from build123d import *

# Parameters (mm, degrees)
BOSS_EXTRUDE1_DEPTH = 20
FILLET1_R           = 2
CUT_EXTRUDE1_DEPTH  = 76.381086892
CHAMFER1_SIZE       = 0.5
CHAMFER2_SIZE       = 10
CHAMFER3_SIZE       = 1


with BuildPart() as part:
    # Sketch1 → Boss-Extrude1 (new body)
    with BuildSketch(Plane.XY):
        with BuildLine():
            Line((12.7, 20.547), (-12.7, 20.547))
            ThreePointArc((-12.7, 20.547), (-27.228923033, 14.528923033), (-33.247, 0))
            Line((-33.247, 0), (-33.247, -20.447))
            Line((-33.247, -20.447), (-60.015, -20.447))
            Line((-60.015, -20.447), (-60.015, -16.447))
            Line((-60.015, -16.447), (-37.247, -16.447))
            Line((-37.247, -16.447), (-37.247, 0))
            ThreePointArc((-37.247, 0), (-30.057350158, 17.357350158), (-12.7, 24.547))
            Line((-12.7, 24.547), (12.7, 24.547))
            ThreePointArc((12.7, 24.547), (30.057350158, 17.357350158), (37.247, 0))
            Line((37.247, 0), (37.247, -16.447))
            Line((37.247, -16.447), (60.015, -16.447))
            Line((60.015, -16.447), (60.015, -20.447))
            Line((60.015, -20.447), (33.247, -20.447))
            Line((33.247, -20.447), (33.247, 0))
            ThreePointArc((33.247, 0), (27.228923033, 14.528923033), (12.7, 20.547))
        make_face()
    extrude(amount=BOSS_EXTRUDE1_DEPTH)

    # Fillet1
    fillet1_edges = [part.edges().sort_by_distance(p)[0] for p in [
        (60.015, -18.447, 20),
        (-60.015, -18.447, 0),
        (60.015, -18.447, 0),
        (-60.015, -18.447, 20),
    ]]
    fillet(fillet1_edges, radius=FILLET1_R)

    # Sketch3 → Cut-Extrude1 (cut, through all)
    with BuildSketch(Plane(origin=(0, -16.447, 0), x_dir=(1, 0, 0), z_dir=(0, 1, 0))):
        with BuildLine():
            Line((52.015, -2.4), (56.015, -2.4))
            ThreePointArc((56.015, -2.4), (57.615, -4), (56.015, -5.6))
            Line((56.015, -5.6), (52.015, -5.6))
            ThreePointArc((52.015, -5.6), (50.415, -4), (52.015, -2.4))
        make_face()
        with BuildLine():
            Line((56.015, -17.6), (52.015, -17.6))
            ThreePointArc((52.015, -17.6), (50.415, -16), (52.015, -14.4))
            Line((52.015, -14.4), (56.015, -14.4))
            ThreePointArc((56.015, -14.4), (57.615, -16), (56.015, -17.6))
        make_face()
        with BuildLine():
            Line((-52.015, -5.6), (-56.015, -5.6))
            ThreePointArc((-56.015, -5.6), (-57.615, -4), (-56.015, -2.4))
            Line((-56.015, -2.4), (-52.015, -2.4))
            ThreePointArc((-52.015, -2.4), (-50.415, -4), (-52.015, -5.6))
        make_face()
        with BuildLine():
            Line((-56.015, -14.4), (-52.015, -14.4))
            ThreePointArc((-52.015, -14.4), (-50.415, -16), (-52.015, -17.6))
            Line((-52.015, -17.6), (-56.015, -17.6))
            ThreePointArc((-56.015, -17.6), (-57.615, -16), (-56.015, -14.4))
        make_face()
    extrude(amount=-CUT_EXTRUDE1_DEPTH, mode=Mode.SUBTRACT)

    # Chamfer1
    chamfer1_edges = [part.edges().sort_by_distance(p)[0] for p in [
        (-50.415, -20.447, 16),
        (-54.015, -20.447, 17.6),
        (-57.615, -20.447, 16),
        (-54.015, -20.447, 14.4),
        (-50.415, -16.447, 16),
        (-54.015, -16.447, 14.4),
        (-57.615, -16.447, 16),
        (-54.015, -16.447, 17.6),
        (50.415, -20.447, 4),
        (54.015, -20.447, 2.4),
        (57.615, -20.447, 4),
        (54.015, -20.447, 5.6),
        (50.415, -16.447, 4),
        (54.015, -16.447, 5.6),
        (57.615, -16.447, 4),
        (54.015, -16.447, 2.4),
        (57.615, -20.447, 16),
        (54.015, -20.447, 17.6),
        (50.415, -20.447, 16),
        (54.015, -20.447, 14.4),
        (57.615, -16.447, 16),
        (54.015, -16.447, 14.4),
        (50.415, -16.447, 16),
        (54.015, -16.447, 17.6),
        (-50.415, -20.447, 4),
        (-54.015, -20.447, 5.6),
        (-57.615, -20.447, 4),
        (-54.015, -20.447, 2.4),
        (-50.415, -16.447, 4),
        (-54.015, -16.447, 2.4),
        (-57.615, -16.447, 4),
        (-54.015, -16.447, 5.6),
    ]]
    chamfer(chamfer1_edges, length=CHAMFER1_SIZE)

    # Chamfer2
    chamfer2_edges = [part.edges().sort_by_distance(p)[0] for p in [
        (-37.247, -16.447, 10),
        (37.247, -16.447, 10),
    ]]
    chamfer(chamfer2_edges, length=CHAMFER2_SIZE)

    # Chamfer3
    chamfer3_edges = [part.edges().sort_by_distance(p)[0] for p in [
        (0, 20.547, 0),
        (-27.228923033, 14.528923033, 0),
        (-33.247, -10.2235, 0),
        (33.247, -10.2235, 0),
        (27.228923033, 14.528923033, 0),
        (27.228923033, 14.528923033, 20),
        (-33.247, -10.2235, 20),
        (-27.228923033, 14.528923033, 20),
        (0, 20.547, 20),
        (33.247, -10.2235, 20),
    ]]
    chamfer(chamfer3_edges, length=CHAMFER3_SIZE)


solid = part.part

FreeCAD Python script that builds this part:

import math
import FreeCAD as App
import Part
import Sketcher

V = App.Vector


def edges_at(feature, points):
    """Names of the edges that pass closest to the given points."""
    edges = feature.Shape.Edges
    near = lambda p: min(range(len(edges)), key=lambda i: edges[i].distToShape(Part.Vertex(*p))[0])
    return sorted({f"Edge{near(p) + 1}" for p in points})

doc = App.newDocument("Part")
params = doc.addObject("Spreadsheet::Sheet", "Params")
for row, (alias, value) in enumerate([
    ("sketch1_height", "4 mm"),
    ("sketch1_width", "25.4 mm"),
    ("pad1_length", "20 mm"),
    ("fillet_radius", "2 mm"),
    ("sketch2_radius", "1.6 mm"),
    ("sketch2_width", "4 mm"),
    ("chamfer_size", "0.5 mm"),
    ("chamfer2_size", "10 mm"),
    ("chamfer3_size", "1 mm"),
], start=1):
    params.set(f"A{row}", alias)
    params.set(f"B{row}", "=" + value)
    params.setAlias(f"B{row}", alias)

body = doc.addObject("PartDesign::Body", "Body")

# Sketch on XY plane
sketch1 = body.newObject("Sketcher::SketchObject", "Sketch")
sketch1.AttachmentSupport = (doc.getObject("XY_Plane"), [""])
sketch1.MapMode = "FlatFace"
sketch1.addGeometry([
    Part.LineSegment(V(-12.7, 20.5, 0), V(12.7, 20.5, 0)),  # 0
    Part.ArcOfCircle(Part.Circle(V(12.7, 0, 0), V(0, 0, 1), 20.5), math.radians(0), math.radians(90)),  # 1
    Part.LineSegment(V(33.2, 0, 0), V(33.2, -20.4, 0)),  # 2
    Part.LineSegment(V(33.2, -20.4, 0), V(60, -20.4, 0)),  # 3
    Part.LineSegment(V(60, -20.4, 0), V(60, -16.4, 0)),  # 4
    Part.LineSegment(V(60, -16.4, 0), V(37.2, -16.4, 0)),  # 5
    Part.LineSegment(V(37.2, -16.4, 0), V(37.2, 0, 0)),  # 6
    Part.ArcOfCircle(Part.Circle(V(12.7, 0, 0), V(0, 0, 1), 24.5), math.radians(0), math.radians(90)),  # 7
    Part.LineSegment(V(12.7, 24.5, 0), V(-12.7, 24.5, 0)),  # 8
    Part.ArcOfCircle(Part.Circle(V(-12.7, 0, 0), V(0, 0, 1), 24.5), math.radians(90), math.radians(180)),  # 9
    Part.LineSegment(V(-37.2, 0, 0), V(-37.2, -16.4, 0)),  # 10
    Part.LineSegment(V(-37.2, -16.4, 0), V(-60, -16.4, 0)),  # 11
    Part.LineSegment(V(-60, -16.4, 0), V(-60, -20.4, 0)),  # 12
    Part.LineSegment(V(-60, -20.4, 0), V(-33.2, -20.4, 0)),  # 13
    Part.LineSegment(V(-33.2, -20.4, 0), V(-33.2, 0, 0)),  # 14
    Part.ArcOfCircle(Part.Circle(V(-12.7, 0, 0), V(0, 0, 1), 20.5), math.radians(90), math.radians(180)),  # 15
], False)
sketch1.addConstraint([
    Sketcher.Constraint("Tangent", 0, 2, 1, 2),
    Sketcher.Constraint("Tangent", 1, 1, 2, 1),
    Sketcher.Constraint("Coincident", 2, 2, 3, 1),
    Sketcher.Constraint("Coincident", 3, 2, 4, 1),
    Sketcher.Constraint("Coincident", 4, 2, 5, 1),
    Sketcher.Constraint("Coincident", 5, 2, 6, 1),
    Sketcher.Constraint("Tangent", 6, 2, 7, 1),
    Sketcher.Constraint("Tangent", 7, 2, 8, 1),
    Sketcher.Constraint("Tangent", 8, 2, 9, 1),
    Sketcher.Constraint("Tangent", 9, 2, 10, 1),
    Sketcher.Constraint("Coincident", 10, 2, 11, 1),
    Sketcher.Constraint("Coincident", 11, 2, 12, 1),
    Sketcher.Constraint("Coincident", 12, 2, 13, 1),
    Sketcher.Constraint("Coincident", 13, 2, 14, 1),
    Sketcher.Constraint("Tangent", 14, 2, 15, 2),
    Sketcher.Constraint("Tangent", 15, 1, 0, 1),
    Sketcher.Constraint("Horizontal", 0),
    Sketcher.Constraint("Vertical", 2),
    Sketcher.Constraint("Horizontal", 3),
    Sketcher.Constraint("Vertical", 4),
    Sketcher.Constraint("Horizontal", 5),
    Sketcher.Constraint("Vertical", 6),
    Sketcher.Constraint("Horizontal", 8),
    Sketcher.Constraint("Vertical", 10),
    Sketcher.Constraint("Horizontal", 11),
    Sketcher.Constraint("Vertical", 12),
    Sketcher.Constraint("Horizontal", 13),
    Sketcher.Constraint("Vertical", 14),
    Sketcher.Constraint("Coincident", 7, 3, 1, 3),
    Sketcher.Constraint("Coincident", 15, 3, 9, 3),
    Sketcher.Constraint("Equal", 7, 9),
    Sketcher.Constraint("Symmetric", 1, 3, 9, 3, -1, 1),
    Sketcher.Constraint("Symmetric", 4, 2, 11, 2, -2),
    Sketcher.Constraint("Horizontal", 3, 2, 12, 2),
    Sketcher.Constraint("DistanceY", 4, 1, 4, 2, 4.0),
    Sketcher.Constraint("DistanceX", 0, 1, 0, 2, 25.4),
    Sketcher.Constraint("Radius", 1, 20.547),
    Sketcher.Constraint("Radius", 7, 24.547),
    Sketcher.Constraint("DistanceX", 3, 1, 3, 2, 26.768),
    Sketcher.Constraint("DistanceY", 2, 2, 2, 1, 20.447),
])
sketch1.setExpression("Constraints[34]", "Params.sketch1_height")
sketch1.setExpression("Constraints[35]", "Params.sketch1_width")
pad1 = body.newObject("PartDesign::Pad", "Pad")
pad1.Profile = sketch1
pad1.setExpression("Length", "Params.pad1_length")
doc.recompute()

fillet = body.newObject("PartDesign::Fillet", "Fillet")
fillet.Base = (pad1, edges_at(pad1, [
    (60.015, -18.447, 20),
    (-60.015, -18.447, 0),
    (60.015, -18.447, 0),
    (-60.015, -18.447, 20),
]))
fillet.setExpression("Radius", "Params.fillet_radius")

# Sketch on XZ plane
sketch2 = body.newObject("Sketcher::SketchObject", "Sketch001")
sketch2.AttachmentSupport = (doc.getObject("XZ_Plane"), [""])
sketch2.MapMode = "FlatFace"
sketch2.AttachmentOffset = App.Placement(V(0, 0, 16.447), App.Rotation())
sketch2.addGeometry([
    Part.LineSegment(V(56, 2.4, 0), V(52, 2.4, 0)),  # 0
    Part.ArcOfCircle(Part.Circle(V(52, 4, 0), V(0, 0, 1), 1.6), math.radians(90), math.radians(270)),  # 1
    Part.LineSegment(V(52, 5.6, 0), V(56, 5.6, 0)),  # 2
    Part.ArcOfCircle(Part.Circle(V(56, 4, 0), V(0, 0, 1), 1.6), math.radians(-90), math.radians(90)),  # 3
    Part.LineSegment(V(52, 17.6, 0), V(56, 17.6, 0)),  # 4
    Part.ArcOfCircle(Part.Circle(V(56, 16, 0), V(0, 0, 1), 1.6), math.radians(-90), math.radians(90)),  # 5
    Part.LineSegment(V(56, 14.4, 0), V(52, 14.4, 0)),  # 6
    Part.ArcOfCircle(Part.Circle(V(52, 16, 0), V(0, 0, 1), 1.6), math.radians(90), math.radians(270)),  # 7
    Part.LineSegment(V(-56, 5.6, 0), V(-52, 5.6, 0)),  # 8
    Part.ArcOfCircle(Part.Circle(V(-52, 4, 0), V(0, 0, 1), 1.6), math.radians(-90), math.radians(90)),  # 9
    Part.LineSegment(V(-52, 2.4, 0), V(-56, 2.4, 0)),  # 10
    Part.ArcOfCircle(Part.Circle(V(-56, 4, 0), V(0, 0, 1), 1.6), math.radians(90), math.radians(270)),  # 11
    Part.LineSegment(V(-52, 14.4, 0), V(-56, 14.4, 0)),  # 12
    Part.ArcOfCircle(Part.Circle(V(-56, 16, 0), V(0, 0, 1), 1.6), math.radians(90), math.radians(270)),  # 13
    Part.LineSegment(V(-56, 17.6, 0), V(-52, 17.6, 0)),  # 14
    Part.ArcOfCircle(Part.Circle(V(-52, 16, 0), V(0, 0, 1), 1.6), math.radians(-90), math.radians(90)),  # 15
], False)
sketch2.addConstraint([
    Sketcher.Constraint("Tangent", 0, 2, 1, 2),
    Sketcher.Constraint("Tangent", 1, 1, 2, 1),
    Sketcher.Constraint("Tangent", 2, 2, 3, 2),
    Sketcher.Constraint("Tangent", 3, 1, 0, 1),
    Sketcher.Constraint("Tangent", 4, 2, 5, 2),
    Sketcher.Constraint("Tangent", 5, 1, 6, 1),
    Sketcher.Constraint("Tangent", 6, 2, 7, 2),
    Sketcher.Constraint("Tangent", 7, 1, 4, 1),
    Sketcher.Constraint("Tangent", 8, 2, 9, 2),
    Sketcher.Constraint("Tangent", 9, 1, 10, 1),
    Sketcher.Constraint("Tangent", 10, 2, 11, 2),
    Sketcher.Constraint("Tangent", 11, 1, 8, 1),
    Sketcher.Constraint("Tangent", 12, 2, 13, 2),
    Sketcher.Constraint("Tangent", 13, 1, 14, 1),
    Sketcher.Constraint("Tangent", 14, 2, 15, 2),
    Sketcher.Constraint("Tangent", 15, 1, 12, 1),
    Sketcher.Constraint("Horizontal", 0),
    Sketcher.Constraint("Horizontal", 2),
    Sketcher.Constraint("Horizontal", 4),
    Sketcher.Constraint("Horizontal", 6),
    Sketcher.Constraint("Horizontal", 8),
    Sketcher.Constraint("Horizontal", 10),
    Sketcher.Constraint("Horizontal", 12),
    Sketcher.Constraint("Horizontal", 14),
    Sketcher.Constraint("Equal", 3, 5),
    Sketcher.Constraint("Equal", 7, 9),
    Sketcher.Constraint("Equal", 11, 13),
    Sketcher.Constraint("Symmetric", 1, 3, 9, 3, -2),
    Sketcher.Constraint("Symmetric", 5, 3, 13, 3, -2),
    Sketcher.Constraint("Vertical", 3, 3, 5, 3),
    Sketcher.Constraint("Vertical", 1, 3, 7, 3),
    Sketcher.Constraint("Vertical", 11, 3, 13, 3),
    Sketcher.Constraint("Vertical", 9, 3, 15, 3),
    Sketcher.Constraint("Radius", 1, 1.6),
    Sketcher.Constraint("DistanceX", 0, 2, 0, 1, 4.0),
    Sketcher.Constraint("DistanceY", -1, 1, 1, 3, 4.0),
    Sketcher.Constraint("DistanceY", -1, 1, 5, 3, 16.0),
    Sketcher.Constraint("DistanceX", 9, 3, 1, 3, 104.03),
])
sketch2.setExpression("Constraints[33]", "Params.sketch2_radius")
sketch2.setExpression("Constraints[34]", "Params.sketch2_width")
pocket1 = body.newObject("PartDesign::Pocket", "Pocket")
pocket1.Profile = sketch2
pocket1.Type = "ThroughAll"
pocket1.Reversed = True
doc.recompute()

chamfer = body.newObject("PartDesign::Chamfer", "Chamfer")
chamfer.Base = (pocket1, edges_at(pocket1, [
    (-50.415, -20.447, 16),
    (-54.015, -20.447, 17.6),
    (-57.615, -20.447, 16),
    (-54.015, -20.447, 14.4),
    (-50.415, -16.447, 16),
    (-54.015, -16.447, 14.4),
    (-57.615, -16.447, 16),
    (-54.015, -16.447, 17.6),
    (50.415, -20.447, 4),
    (54.015, -20.447, 2.4),
    (57.615, -20.447, 4),
    (54.015, -20.447, 5.6),
    (50.415, -16.447, 4),
    (54.015, -16.447, 5.6),
    (57.615, -16.447, 4),
    (54.015, -16.447, 2.4),
    (57.615, -20.447, 16),
    (54.015, -20.447, 17.6),
    (50.415, -20.447, 16),
    (54.015, -20.447, 14.4),
    (57.615, -16.447, 16),
    (54.015, -16.447, 14.4),
    (50.415, -16.447, 16),
    (54.015, -16.447, 17.6),
    (-50.415, -20.447, 4),
    (-54.015, -20.447, 5.6),
    (-57.615, -20.447, 4),
    (-54.015, -20.447, 2.4),
    (-50.415, -16.447, 4),
    (-54.015, -16.447, 2.4),
    (-57.615, -16.447, 4),
    (-54.015, -16.447, 5.6),
]))
chamfer.setExpression("Size", "Params.chamfer_size")
doc.recompute()

chamfer2 = body.newObject("PartDesign::Chamfer", "Chamfer001")
chamfer2.Base = (chamfer, edges_at(chamfer, [(-37.247, -16.447, 10), (37.247, -16.447, 10)]))
chamfer2.setExpression("Size", "Params.chamfer2_size")
doc.recompute()

chamfer3 = body.newObject("PartDesign::Chamfer", "Chamfer002")
chamfer3.Base = (chamfer2, edges_at(chamfer2, [
    (0, 20.547, 0),
    (-27.229, 14.529, 0),
    (-33.247, -10.223, 0),
    (33.247, -10.223, 0),
    (27.229, 14.529, 0),
    (27.229, 14.529, 20),
    (-33.247, -10.223, 20),
    (-27.229, 14.529, 20),
    (0, 20.547, 20),
    (33.247, -10.223, 20),
]))
chamfer3.setExpression("Size", "Params.chamfer3_size")

doc.recompute()
